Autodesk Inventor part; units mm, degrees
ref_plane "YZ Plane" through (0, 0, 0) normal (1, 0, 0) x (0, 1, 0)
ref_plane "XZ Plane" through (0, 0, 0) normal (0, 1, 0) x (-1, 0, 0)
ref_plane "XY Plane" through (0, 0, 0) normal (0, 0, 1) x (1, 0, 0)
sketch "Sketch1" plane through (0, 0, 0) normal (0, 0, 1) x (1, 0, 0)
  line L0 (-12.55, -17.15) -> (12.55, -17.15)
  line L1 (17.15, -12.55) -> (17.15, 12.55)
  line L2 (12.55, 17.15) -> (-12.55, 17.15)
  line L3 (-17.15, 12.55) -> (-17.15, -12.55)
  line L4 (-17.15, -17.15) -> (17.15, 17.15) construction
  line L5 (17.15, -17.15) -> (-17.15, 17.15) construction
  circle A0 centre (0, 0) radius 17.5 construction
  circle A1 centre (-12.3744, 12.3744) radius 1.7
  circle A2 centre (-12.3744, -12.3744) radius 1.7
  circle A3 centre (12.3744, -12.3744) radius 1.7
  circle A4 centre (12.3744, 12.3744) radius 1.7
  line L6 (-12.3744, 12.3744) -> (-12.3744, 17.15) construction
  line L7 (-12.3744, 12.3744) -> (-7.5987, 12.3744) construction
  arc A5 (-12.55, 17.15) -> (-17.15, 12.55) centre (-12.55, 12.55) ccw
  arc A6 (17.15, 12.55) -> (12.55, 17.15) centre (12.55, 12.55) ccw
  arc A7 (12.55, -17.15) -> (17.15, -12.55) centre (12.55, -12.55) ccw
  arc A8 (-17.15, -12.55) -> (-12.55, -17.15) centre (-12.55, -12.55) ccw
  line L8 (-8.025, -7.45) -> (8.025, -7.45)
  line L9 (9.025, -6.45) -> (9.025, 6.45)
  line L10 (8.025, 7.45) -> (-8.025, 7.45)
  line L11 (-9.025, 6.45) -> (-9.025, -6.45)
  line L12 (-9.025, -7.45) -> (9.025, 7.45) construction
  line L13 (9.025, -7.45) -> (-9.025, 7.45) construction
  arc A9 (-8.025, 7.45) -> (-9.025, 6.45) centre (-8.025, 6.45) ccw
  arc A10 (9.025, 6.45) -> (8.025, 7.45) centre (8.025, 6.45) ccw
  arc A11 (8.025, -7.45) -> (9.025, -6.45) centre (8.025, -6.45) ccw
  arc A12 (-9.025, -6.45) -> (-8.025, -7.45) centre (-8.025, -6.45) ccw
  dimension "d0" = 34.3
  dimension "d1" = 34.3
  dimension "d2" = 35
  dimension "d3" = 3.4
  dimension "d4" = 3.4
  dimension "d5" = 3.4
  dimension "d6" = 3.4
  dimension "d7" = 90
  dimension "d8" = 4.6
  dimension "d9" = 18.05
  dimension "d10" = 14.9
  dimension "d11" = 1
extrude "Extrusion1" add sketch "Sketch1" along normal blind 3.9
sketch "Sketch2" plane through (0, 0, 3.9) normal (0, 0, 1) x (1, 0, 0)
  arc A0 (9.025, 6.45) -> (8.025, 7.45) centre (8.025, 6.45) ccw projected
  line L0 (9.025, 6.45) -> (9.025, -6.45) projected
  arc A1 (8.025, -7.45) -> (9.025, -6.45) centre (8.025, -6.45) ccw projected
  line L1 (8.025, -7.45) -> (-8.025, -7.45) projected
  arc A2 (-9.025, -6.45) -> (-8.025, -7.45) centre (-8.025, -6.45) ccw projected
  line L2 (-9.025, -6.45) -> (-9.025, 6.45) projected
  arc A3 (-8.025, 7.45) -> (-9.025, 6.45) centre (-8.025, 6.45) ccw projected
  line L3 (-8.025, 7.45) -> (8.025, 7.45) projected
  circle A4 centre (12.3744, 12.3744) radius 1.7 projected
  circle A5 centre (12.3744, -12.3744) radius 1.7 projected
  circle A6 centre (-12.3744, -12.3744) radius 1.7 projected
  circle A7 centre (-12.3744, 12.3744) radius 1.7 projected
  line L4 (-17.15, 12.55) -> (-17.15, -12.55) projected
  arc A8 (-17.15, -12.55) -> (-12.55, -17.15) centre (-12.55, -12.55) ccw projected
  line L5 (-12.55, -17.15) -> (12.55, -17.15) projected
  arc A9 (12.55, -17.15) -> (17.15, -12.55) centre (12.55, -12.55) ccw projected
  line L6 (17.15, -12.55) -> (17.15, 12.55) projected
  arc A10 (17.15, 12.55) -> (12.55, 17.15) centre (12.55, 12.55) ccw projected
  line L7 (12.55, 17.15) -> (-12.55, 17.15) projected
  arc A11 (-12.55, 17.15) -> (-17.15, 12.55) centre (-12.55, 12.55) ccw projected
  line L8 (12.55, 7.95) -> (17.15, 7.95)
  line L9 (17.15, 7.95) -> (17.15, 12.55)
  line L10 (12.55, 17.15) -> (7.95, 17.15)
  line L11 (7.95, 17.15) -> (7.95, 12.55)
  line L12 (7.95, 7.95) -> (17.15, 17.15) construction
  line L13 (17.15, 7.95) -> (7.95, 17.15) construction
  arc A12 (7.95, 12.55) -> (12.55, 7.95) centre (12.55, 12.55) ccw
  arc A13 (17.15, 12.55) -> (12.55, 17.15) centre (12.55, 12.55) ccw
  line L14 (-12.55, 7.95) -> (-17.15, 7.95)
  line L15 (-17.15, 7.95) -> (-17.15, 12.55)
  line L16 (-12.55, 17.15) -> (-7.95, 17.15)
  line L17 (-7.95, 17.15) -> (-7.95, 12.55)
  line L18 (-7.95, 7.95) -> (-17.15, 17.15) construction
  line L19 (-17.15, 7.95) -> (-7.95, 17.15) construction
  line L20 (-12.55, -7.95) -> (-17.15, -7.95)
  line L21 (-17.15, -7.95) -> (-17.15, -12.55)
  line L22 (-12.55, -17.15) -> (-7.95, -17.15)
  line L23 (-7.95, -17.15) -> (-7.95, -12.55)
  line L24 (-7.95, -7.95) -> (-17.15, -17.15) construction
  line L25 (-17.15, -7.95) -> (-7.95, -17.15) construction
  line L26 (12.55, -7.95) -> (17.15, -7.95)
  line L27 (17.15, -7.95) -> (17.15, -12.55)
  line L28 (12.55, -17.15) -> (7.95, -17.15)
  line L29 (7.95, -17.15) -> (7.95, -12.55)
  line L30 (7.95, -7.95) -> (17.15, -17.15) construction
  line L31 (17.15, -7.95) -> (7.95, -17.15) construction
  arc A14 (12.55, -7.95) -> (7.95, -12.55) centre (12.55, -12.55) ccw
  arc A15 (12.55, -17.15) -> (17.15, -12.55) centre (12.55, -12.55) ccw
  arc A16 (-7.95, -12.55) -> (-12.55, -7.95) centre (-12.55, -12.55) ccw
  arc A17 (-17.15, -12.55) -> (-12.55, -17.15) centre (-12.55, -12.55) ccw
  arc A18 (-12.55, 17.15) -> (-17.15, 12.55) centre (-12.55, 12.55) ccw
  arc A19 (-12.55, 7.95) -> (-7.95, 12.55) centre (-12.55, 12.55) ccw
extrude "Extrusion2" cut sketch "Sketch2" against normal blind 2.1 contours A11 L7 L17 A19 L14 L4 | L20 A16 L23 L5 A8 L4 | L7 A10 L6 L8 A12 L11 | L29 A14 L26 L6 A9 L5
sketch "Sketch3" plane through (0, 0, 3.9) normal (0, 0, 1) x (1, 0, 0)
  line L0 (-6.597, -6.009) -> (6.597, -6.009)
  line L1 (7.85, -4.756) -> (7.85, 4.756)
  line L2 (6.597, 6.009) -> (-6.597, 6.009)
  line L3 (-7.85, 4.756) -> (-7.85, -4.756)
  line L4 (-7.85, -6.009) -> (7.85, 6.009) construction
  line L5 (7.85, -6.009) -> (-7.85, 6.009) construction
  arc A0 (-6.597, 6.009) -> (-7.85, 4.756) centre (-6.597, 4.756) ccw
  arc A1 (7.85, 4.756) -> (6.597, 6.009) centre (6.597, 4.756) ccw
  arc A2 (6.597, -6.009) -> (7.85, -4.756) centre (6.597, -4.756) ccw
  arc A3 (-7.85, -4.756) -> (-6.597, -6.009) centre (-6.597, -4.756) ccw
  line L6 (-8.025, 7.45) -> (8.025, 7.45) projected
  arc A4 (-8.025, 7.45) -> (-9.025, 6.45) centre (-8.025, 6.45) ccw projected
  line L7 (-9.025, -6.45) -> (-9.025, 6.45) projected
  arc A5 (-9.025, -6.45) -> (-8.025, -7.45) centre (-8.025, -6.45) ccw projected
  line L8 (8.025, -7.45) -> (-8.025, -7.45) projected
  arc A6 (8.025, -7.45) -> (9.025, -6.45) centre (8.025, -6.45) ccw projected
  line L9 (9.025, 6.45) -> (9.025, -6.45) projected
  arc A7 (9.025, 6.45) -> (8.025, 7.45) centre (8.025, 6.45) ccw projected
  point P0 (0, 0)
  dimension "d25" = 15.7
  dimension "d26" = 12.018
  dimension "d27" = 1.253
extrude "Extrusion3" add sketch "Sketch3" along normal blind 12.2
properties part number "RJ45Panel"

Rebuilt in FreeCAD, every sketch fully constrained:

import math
import FreeCAD as App
import Part
import Sketcher

V = App.Vector
Q = App.Units.Quantity

doc = App.newDocument("Part")
body = doc.addObject("PartDesign::Body", "Body")
body.AllowCompound = True

sketch1 = body.newObject("Sketcher::SketchObject", "Sketch")
sketch1.AttachmentSupport = (doc.getObject("XY_Plane"), [""])
sketch1.MapMode = "FlatFace"
sketch1.addGeometry(Part.ArcOfCircle(Part.Circle(V(-12.6, -12.6, 0), V(0, 0, 1), 4.6), math.radians(180), math.radians(270)), False)
sketch1.addGeometry(Part.LineSegment(V(-12.6, -17.1, 0), V(12.6, -17.1, 0)), False)
sketch1.addGeometry(Part.ArcOfCircle(Part.Circle(V(12.6, -12.6, 0), V(0, 0, 1), 4.6), math.radians(-90), math.radians(0)), False)
sketch1.addGeometry(Part.LineSegment(V(17.1, -12.6, 0), V(17.1, 12.6, 0)), False)
sketch1.addGeometry(Part.ArcOfCircle(Part.Circle(V(12.6, 12.6, 0), V(0, 0, 1), 4.6), math.radians(0), math.radians(90)), False)
sketch1.addGeometry(Part.LineSegment(V(12.6, 17.1, 0), V(-12.6, 17.1, 0)), False)
sketch1.addGeometry(Part.ArcOfCircle(Part.Circle(V(-12.6, 12.6, 0), V(0, 0, 1), 4.6), math.radians(90), math.radians(180)), False)
sketch1.addGeometry(Part.LineSegment(V(-17.1, 12.6, 0), V(-17.1, -12.6, 0)), False)
sketch1.addGeometry(Part.Circle(V(-12.4, -12.4, 0), V(0, 0, 1), 1.7), False)
sketch1.addGeometry(Part.Circle(V(12.4, -12.4, 0), V(0, 0, 1), 1.7), False)
sketch1.addGeometry(Part.Circle(V(-12.4, 12.4, 0), V(0, 0, 1), 1.7), False)
sketch1.addGeometry(Part.LineSegment(V(8, -7.5, 0), V(-8, -7.5, 0)), False)
sketch1.addGeometry(Part.ArcOfCircle(Part.Circle(V(-8, -6.5, 0), V(0, 0, 1), 1), math.radians(180), math.radians(270)), False)
sketch1.addGeometry(Part.LineSegment(V(-9, -6.5, 0), V(-9, 6.5, 0)), False)
sketch1.addGeometry(Part.ArcOfCircle(Part.Circle(V(-8, 6.5, 0), V(0, 0, 1), 1), math.radians(90), math.radians(180)), False)
sketch1.addGeometry(Part.LineSegment(V(-8, 7.5, 0), V(8, 7.5, 0)), False)
sketch1.addGeometry(Part.ArcOfCircle(Part.Circle(V(8, 6.5, 0), V(0, 0, 1), 1), math.radians(0), math.radians(90)), False)
sketch1.addGeometry(Part.LineSegment(V(9, 6.5, 0), V(9, -6.5, 0)), False)
sketch1.addGeometry(Part.ArcOfCircle(Part.Circle(V(8, -6.5, 0), V(0, 0, 1), 1), math.radians(-90), math.radians(0)), False)
sketch1.addGeometry(Part.Circle(V(12.4, 12.4, 0), V(0, 0, 1), 1.7), False)
sketch1.addConstraint(Sketcher.Constraint("Tangent", 0, 2, 1, 1))
sketch1.addConstraint(Sketcher.Constraint("Tangent", 1, 2, 2, 1))
sketch1.addConstraint(Sketcher.Constraint("Tangent", 2, 2, 3, 1))
sketch1.addConstraint(Sketcher.Constraint("Tangent", 3, 2, 4, 1))
sketch1.addConstraint(Sketcher.Constraint("Tangent", 4, 2, 5, 1))
sketch1.addConstraint(Sketcher.Constraint("Tangent", 5, 2, 6, 1))
sketch1.addConstraint(Sketcher.Constraint("Tangent", 6, 2, 7, 1))
sketch1.addConstraint(Sketcher.Constraint("Tangent", 7, 2, 0, 1))
sketch1.addConstraint(Sketcher.Constraint("Tangent", 11, 2, 12, 2))
sketch1.addConstraint(Sketcher.Constraint("Tangent", 12, 1, 13, 1))
sketch1.addConstraint(Sketcher.Constraint("Tangent", 13, 2, 14, 2))
sketch1.addConstraint(Sketcher.Constraint("Tangent", 14, 1, 15, 1))
sketch1.addConstraint(Sketcher.Constraint("Tangent", 15, 2, 16, 2))
sketch1.addConstraint(Sketcher.Constraint("Tangent", 16, 1, 17, 1))
sketch1.addConstraint(Sketcher.Constraint("Tangent", 17, 2, 18, 2))
sketch1.addConstraint(Sketcher.Constraint("Tangent", 18, 1, 11, 1))
sketch1.addConstraint(Sketcher.Constraint("Horizontal", 1))
sketch1.addConstraint(Sketcher.Constraint("Vertical", 3))
sketch1.addConstraint(Sketcher.Constraint("Horizontal", 5))
sketch1.addConstraint(Sketcher.Constraint("Vertical", 7))
sketch1.addConstraint(Sketcher.Constraint("Horizontal", 11))
sketch1.addConstraint(Sketcher.Constraint("Vertical", 13))
sketch1.addConstraint(Sketcher.Constraint("Horizontal", 15))
sketch1.addConstraint(Sketcher.Constraint("Vertical", 17))
sketch1.addConstraint(Sketcher.Constraint("Equal", 0, 2))
sketch1.addConstraint(Sketcher.Constraint("Equal", 2, 4))
sketch1.addConstraint(Sketcher.Constraint("Equal", 4, 6))
sketch1.addConstraint(Sketcher.Constraint("Equal", 8, 9))
sketch1.addConstraint(Sketcher.Constraint("Equal", 9, 10))
sketch1.addConstraint(Sketcher.Constraint("Equal", 12, 14))
sketch1.addConstraint(Sketcher.Constraint("Equal", 14, 16))
sketch1.addConstraint(Sketcher.Constraint("Equal", 16, 18))
sketch1.addConstraint(Sketcher.Constraint("Equal", 10, 19))
sketch1.addConstraint(Sketcher.Constraint("Symmetric", 0, 3, 4, 3, -1, 1))
sketch1.addConstraint(Sketcher.Constraint("Symmetric", 9, 3, 10, 3, -1, 1))
sketch1.addConstraint(Sketcher.Constraint("Symmetric", 12, 3, 16, 3, -1, 1))
sketch1.addConstraint(Sketcher.Constraint("Symmetric", 8, 3, 19, 3, -1, 1))
sketch1.addConstraint(Sketcher.Constraint("Symmetric", 8, 3, 9, 3, -2))
sketch1.addConstraint(Sketcher.Constraint("Equal", 5, 3))
sketch1.addConstraint(Sketcher.Constraint("Radius", 12, Q("1 mm")))
sketch1.addConstraint(Sketcher.Constraint("Diameter", 8, Q("3.4 mm")))
sketch1.addConstraint(Sketcher.Constraint("Radius", 0, Q("4.6 mm")))
sketch1.addConstraint(Sketcher.Constraint("DistanceX", 1, 1, 1, 2, Q("25.1 mm")))
sketch1.addConstraint(Sketcher.Constraint("DistanceY", 13, 1, 13, 2, Q("12.9 mm")))
sketch1.addConstraint(Sketcher.Constraint("DistanceX", 11, 2, 11, 1, Q("16.05 mm")))
sketch1.addConstraint(Sketcher.Constraint("DistanceX", 8, 3, -1, 1, Q("12.3744 mm")))
sketch1.addConstraint(Sketcher.Constraint("DistanceY", 8, 3, -1, 1, Q("12.3744 mm")))
pad1 = body.newObject("PartDesign::Pad", "Pad")
pad1.Profile = sketch1
pad1.Length = 3.9

sketch2 = body.newObject("Sketcher::SketchObject", "Sketch001")
sketch2.AttachmentSupport = (doc.getObject("XY_Plane"), [""])
sketch2.MapMode = "FlatFace"
sketch2.AttachmentOffset = App.Placement(V(0, 0, 3.9), App.Rotation())
sketch2.addGeometry(Part.ArcOfCircle(Part.Circle(V(-12.6, 12.6, 0), V(0, 0, 1), 4.6), math.radians(90), math.radians(180)), False)
sketch2.addGeometry(Part.LineSegment(V(-17.1, 12.6, 0), V(-17.1, 8, 0)), False)
sketch2.addGeometry(Part.LineSegment(V(-17.1, 8, 0), V(-12.6, 8, 0)), False)
sketch2.addGeometry(Part.ArcOfCircle(Part.Circle(V(-12.6, 12.6, 0), V(0, 0, 1), 4.6), math.radians(-90), math.radians(0)), False)
sketch2.addGeometry(Part.LineSegment(V(-8, 12.6, 0), V(-8, 17.1, 0)), False)
sketch2.addGeometry(Part.LineSegment(V(-8, 17.1, 0), V(-12.6, 17.1, 0)), False)
sketch2.addGeometry(Part.Circle(V(-12.4, 12.4, 0), V(0, 0, 1), 1.7), False)
sketch2.addGeometry(Part.LineSegment(V(-12.6, -8, 0), V(-17.1, -8, 0)), False)
sketch2.addGeometry(Part.LineSegment(V(-17.1, -8, 0), V(-17.1, -12.6, 0)), False)
sketch2.addGeometry(Part.ArcOfCircle(Part.Circle(V(-12.6, -12.6, 0), V(0, 0, 1), 4.6), math.radians(180), math.radians(270)), False)
sketch2.addGeometry(Part.LineSegment(V(-12.6, -17.1, 0), V(-8, -17.1, 0)), False)
sketch2.addGeometry(Part.LineSegment(V(-8, -17.1, 0), V(-8, -12.6, 0)), False)
sketch2.addGeometry(Part.ArcOfCircle(Part.Circle(V(-12.6, -12.6, 0), V(0, 0, 1), 4.6), math.radians(0), math.radians(90)), False)
sketch2.addGeometry(Part.Circle(V(-12.4, -12.4, 0), V(0, 0, 1), 1.7), False)
sketch2.addGeometry(Part.LineSegment(V(12.6, 17.1, 0), V(8, 17.1, 0)), False)
sketch2.addGeometry(Part.LineSegment(V(8, 17.1, 0), V(8, 12.6, 0)), False)
sketch2.addGeometry(Part.ArcOfCircle(Part.Circle(V(12.6, 12.6, 0), V(0, 0, 1), 4.6), math.radians(180), math.radians(270)), False)
sketch2.addGeometry(Part.LineSegment(V(12.6, 8, 0), V(17.1, 8, 0)), False)
sketch2.addGeometry(Part.LineSegment(V(17.1, 8, 0), V(17.1, 12.6, 0)), False)
sketch2.addGeometry(Part.ArcOfCircle(Part.Circle(V(12.6, 12.6, 0), V(0, 0, 1), 4.6), math.radians(0), math.radians(90)), False)
sketch2.addGeometry(Part.Circle(V(12.4, 12.4, 0), V(0, 0, 1), 1.7), False)
sketch2.addGeometry(Part.LineSegment(V(8, -12.6, 0), V(8, -17.1, 0)), False)
sketch2.addGeometry(Part.LineSegment(V(8, -17.1, 0), V(12.6, -17.1, 0)), False)
sketch2.addGeometry(Part.ArcOfCircle(Part.Circle(V(12.6, -12.6, 0), V(0, 0, 1), 4.6), math.radians(-90), math.radians(0)), False)
sketch2.addGeometry(Part.LineSegment(V(17.1, -12.6, 0), V(17.1, -8, 0)), False)
sketch2.addGeometry(Part.LineSegment(V(17.1, -8, 0), V(12.6, -8, 0)), False)
sketch2.addGeometry(Part.ArcOfCircle(Part.Circle(V(12.6, -12.6, 0), V(0, 0, 1), 4.6), math.radians(90), math.radians(180)), False)
sketch2.addGeometry(Part.Circle(V(12.4, -12.4, 0), V(0, 0, 1), 1.7), False)
sketch2.addConstraint(Sketcher.Constraint("Tangent", 0, 2, 1, 1))
sketch2.addConstraint(Sketcher.Constraint("Coincident", 1, 2, 2, 1))
sketch2.addConstraint(Sketcher.Constraint("Tangent", 2, 2, 3, 1))
sketch2.addConstraint(Sketcher.Constraint("Tangent", 3, 2, 4, 1))
sketch2.addConstraint(Sketcher.Constraint("Coincident", 4, 2, 5, 1))
sketch2.addConstraint(Sketcher.Constraint("Tangent", 5, 2, 0, 1))
sketch2.addConstraint(Sketcher.Constraint("Coincident", 7, 2, 8, 1))
sketch2.addConstraint(Sketcher.Constraint("Tangent", 8, 2, 9, 1))
sketch2.addConstraint(Sketcher.Constraint("Tangent", 9, 2, 10, 1))
sketch2.addConstraint(Sketcher.Constraint("Coincident", 10, 2, 11, 1))
sketch2.addConstraint(Sketcher.Constraint("Tangent", 11, 2, 12, 1))
sketch2.addConstraint(Sketcher.Constraint("Tangent", 12, 2, 7, 1))
sketch2.addConstraint(Sketcher.Constraint("Coincident", 14, 2, 15, 1))
sketch2.addConstraint(Sketcher.Constraint("Tangent", 15, 2, 16, 1))
sketch2.addConstraint(Sketcher.Constraint("Tangent", 16, 2, 17, 1))
sketch2.addConstraint(Sketcher.Constraint("Coincident", 17, 2, 18, 1))
sketch2.addConstraint(Sketcher.Constraint("Tangent", 18, 2, 19, 1))
sketch2.addConstraint(Sketcher.Constraint("Tangent", 19, 2, 14, 1))
sketch2.addConstraint(Sketcher.Constraint("Coincident", 21, 2, 22, 1))
sketch2.addConstraint(Sketcher.Constraint("Tangent", 22, 2, 23, 1))
sketch2.addConstraint(Sketcher.Constraint("Tangent", 23, 2, 24, 1))
sketch2.addConstraint(Sketcher.Constraint("Coincident", 24, 2, 25, 1))
sketch2.addConstraint(Sketcher.Constraint("Tangent", 25, 2, 26, 1))
sketch2.addConstraint(Sketcher.Constraint("Tangent", 26, 2, 21, 1))
sketch2.addConstraint(Sketcher.Constraint("Vertical", 1))
sketch2.addConstraint(Sketcher.Constraint("Horizontal", 2))
sketch2.addConstraint(Sketcher.Constraint("Vertical", 4))
sketch2.addConstraint(Sketcher.Constraint("Horizontal", 5))
sketch2.addConstraint(Sketcher.Constraint("Horizontal", 7))
sketch2.addConstraint(Sketcher.Constraint("Vertical", 8))
sketch2.addConstraint(Sketcher.Constraint("Horizontal", 10))
sketch2.addConstraint(Sketcher.Constraint("Vertical", 11))
sketch2.addConstraint(Sketcher.Constraint("Horizontal", 14))
sketch2.addConstraint(Sketcher.Constraint("Vertical", 15))
sketch2.addConstraint(Sketcher.Constraint("Horizontal", 17))
sketch2.addConstraint(Sketcher.Constraint("Vertical", 18))
sketch2.addConstraint(Sketcher.Constraint("Vertical", 21))
sketch2.addConstraint(Sketcher.Constraint("Horizontal", 22))
sketch2.addConstraint(Sketcher.Constraint("Vertical", 24))
sketch2.addConstraint(Sketcher.Constraint("Horizontal", 25))
sketch2.addConstraint(Sketcher.Constraint("Coincident", 3, 3, 0, 3))
sketch2.addConstraint(Sketcher.Constraint("Coincident", 12, 3, 9, 3))
sketch2.addConstraint(Sketcher.Constraint("Coincident", 19, 3, 16, 3))
sketch2.addConstraint(Sketcher.Constraint("Coincident", 26, 3, 23, 3))
sketch2.addConstraint(Sketcher.Constraint("Equal", 0, 3))
sketch2.addConstraint(Sketcher.Constraint("Equal", 3, 9))
sketch2.addConstraint(Sketcher.Constraint("Equal", 9, 12))
sketch2.addConstraint(Sketcher.Constraint("Equal", 6, 13))
sketch2.addConstraint(Sketcher.Constraint("Equal", 12, 16))
sketch2.addConstraint(Sketcher.Constraint("Equal", 16, 19))
sketch2.addConstraint(Sketcher.Constraint("Equal", 13, 20))
sketch2.addConstraint(Sketcher.Constraint("Equal", 19, 23))
sketch2.addConstraint(Sketcher.Constraint("Equal", 23, 26))
sketch2.addConstraint(Sketcher.Constraint("Equal", 20, 27))
sketch2.addConstraint(Sketcher.Constraint("Symmetric", 9, 3, 16, 3, -1, 1))
sketch2.addConstraint(Sketcher.Constraint("Symmetric", 13, 3, 20, 3, -1, 1))
sketch2.addConstraint(Sketcher.Constraint("Symmetric", 0, 3, 23, 3, -1, 1))
sketch2.addConstraint(Sketcher.Constraint("Symmetric", 6, 3, 27, 3, -1, 1))
sketch2.addConstraint(Sketcher.Constraint("Symmetric", 0, 3, 16, 3, -2))
sketch2.addConstraint(Sketcher.Constraint("Symmetric", 6, 3, 20, 3, -2))
sketch2.addConstraint(Sketcher.Constraint("Diameter", 6, Q("3.4 mm")))
sketch2.addConstraint(Sketcher.Constraint("Radius", 0, Q("4.6 mm")))
sketch2.addConstraint(Sketcher.Constraint("DistanceY", 9, 3, 0, 3, Q("25.1 mm")))
sketch2.addConstraint(Sketcher.Constraint("DistanceX", 0, 3, 16, 3, Q("25.1 mm")))
sketch2.addConstraint(Sketcher.Constraint("DistanceX", 6, 3, -1, 1, Q("12.3744 mm")))
sketch2.addConstraint(Sketcher.Constraint("DistanceY", -1, 1, 6, 3, Q("12.3744 mm")))
pocket1 = body.newObject("PartDesign::Pocket", "Pocket")
pocket1.Profile = sketch2
pocket1.Length = 2.1

sketch3 = body.newObject("Sketcher::SketchObject", "Sketch002")
sketch3.AttachmentSupport = (doc.getObject("XY_Plane"), [""])
sketch3.MapMode = "FlatFace"
sketch3.AttachmentOffset = App.Placement(V(0, 0, 3.9), App.Rotation())
sketch3.addGeometry(Part.LineSegment(V(8, 7.5, 0), V(-8, 7.5, 0)), False)
sketch3.addGeometry(Part.ArcOfCircle(Part.Circle(V(-8, 6.5, 0), V(0, 0, 1), 1), math.radians(90), math.radians(180)), False)
sketch3.addGeometry(Part.LineSegment(V(-9, 6.5, 0), V(-9, -6.5, 0)), False)
sketch3.addGeometry(Part.ArcOfCircle(Part.Circle(V(-8, -6.5, 0), V(0, 0, 1), 1), math.radians(180), math.radians(270)), False)
sketch3.addGeometry(Part.LineSegment(V(-8, -7.5, 0), V(8, -7.5, 0)), False)
sketch3.addGeometry(Part.ArcOfCircle(Part.Circle(V(8, -6.5, 0), V(0, 0, 1), 1), math.radians(-90), math.radians(0)), False)
sketch3.addGeometry(Part.LineSegment(V(9, -6.5, 0), V(9, 6.5, 0)), False)
sketch3.addGeometry(Part.ArcOfCircle(Part.Circle(V(8, 6.5, 0), V(0, 0, 1), 1), math.radians(0), math.radians(90)), False)
sketch3.addGeometry(Part.LineSegment(V(6.6, -6, 0), V(-6.6, -6, 0)), False)
sketch3.addGeometry(Part.ArcOfCircle(Part.Circle(V(-6.6, -4.8, 0), V(0, 0, 1), 1.3), math.radians(180), math.radians(270)), False)
sketch3.addGeometry(Part.LineSegment(V(-7.8, -4.8, 0), V(-7.8, 4.8, 0)), False)
sketch3.addGeometry(Part.ArcOfCircle(Part.Circle(V(-6.6, 4.8, 0), V(0, 0, 1), 1.3), math.radians(90), math.radians(180)), False)
sketch3.addGeometry(Part.LineSegment(V(-6.6, 6, 0), V(6.6, 6, 0)), False)
sketch3.addGeometry(Part.ArcOfCircle(Part.Circle(V(6.6, 4.8, 0), V(0, 0, 1), 1.3), math.radians(0), math.radians(90)), False)
sketch3.addGeometry(Part.LineSegment(V(7.8, 4.8, 0), V(7.8, -4.8, 0)), False)
sketch3.addGeometry(Part.ArcOfCircle(Part.Circle(V(6.6, -4.8, 0), V(0, 0, 1), 1.3), math.radians(-90), math.radians(0)), False)
sketch3.addConstraint(Sketcher.Constraint("Tangent", 0, 2, 1, 1))
sketch3.addConstraint(Sketcher.Constraint("Tangent", 1, 2, 2, 1))
sketch3.addConstraint(Sketcher.Constraint("Tangent", 2, 2, 3, 1))
sketch3.addConstraint(Sketcher.Constraint("Tangent", 3, 2, 4, 1))
sketch3.addConstraint(Sketcher.Constraint("Tangent", 4, 2, 5, 1))
sketch3.addConstraint(Sketcher.Constraint("Tangent", 5, 2, 6, 1))
sketch3.addConstraint(Sketcher.Constraint("Tangent", 6, 2, 7, 1))
sketch3.addConstraint(Sketcher.Constraint("Tangent", 7, 2, 0, 1))
sketch3.addConstraint(Sketcher.Constraint("Tangent", 8, 2, 9, 2))
sketch3.addConstraint(Sketcher.Constraint("Tangent", 9, 1, 10, 1))
sketch3.addConstraint(Sketcher.Constraint("Tangent", 10, 2, 11, 2))
sketch3.addConstraint(Sketcher.Constraint("Tangent", 11, 1, 12, 1))
sketch3.addConstraint(Sketcher.Constraint("Tangent", 12, 2, 13, 2))
sketch3.addConstraint(Sketcher.Constraint("Tangent", 13, 1, 14, 1))
sketch3.addConstraint(Sketcher.Constraint("Tangent", 14, 2, 15, 2))
sketch3.addConstraint(Sketcher.Constraint("Tangent", 15, 1, 8, 1))
sketch3.addConstraint(Sketcher.Constraint("Horizontal", 0))
sketch3.addConstraint(Sketcher.Constraint("Vertical", 2))
sketch3.addConstraint(Sketcher.Constraint("Horizontal", 4))
sketch3.addConstraint(Sketcher.Constraint("Vertical", 6))
sketch3.addConstraint(Sketcher.Constraint("Horizontal", 8))
sketch3.addConstraint(Sketcher.Constraint("Vertical", 10))
sketch3.addConstraint(Sketcher.Constraint("Horizontal", 12))
sketch3.addConstraint(Sketcher.Constraint("Vertical", 14))
sketch3.addConstraint(Sketcher.Constraint("Equal", 1, 3))
sketch3.addConstraint(Sketcher.Constraint("Equal", 3, 5))
sketch3.addConstraint(Sketcher.Constraint("Equal", 5, 7))
sketch3.addConstraint(Sketcher.Constraint("Equal", 9, 11))
sketch3.addConstraint(Sketcher.Constraint("Equal", 11, 13))
sketch3.addConstraint(Sketcher.Constraint("Equal", 13, 15))
sketch3.addConstraint(Sketcher.Constraint("Symmetric", 1, 3, 5, 3, -1, 1))
sketch3.addConstraint(Sketcher.Constraint("Symmetric", 9, 3, 13, 3, -1, 1))
sketch3.addConstraint(Sketcher.Constraint("Radius", 1, Q("1 mm")))
sketch3.addConstraint(Sketcher.Constraint("Radius", 9, Q("1.253 mm")))
sketch3.addConstraint(Sketcher.Constraint("DistanceY", 2, 2, 2, 1, Q("12.9 mm")))
sketch3.addConstraint(Sketcher.Constraint("DistanceX", 0, 2, 0, 1, Q("16.05 mm")))
sketch3.addConstraint(Sketcher.Constraint("DistanceX", 8, 2, 8, 1, Q("13.194 mm")))
sketch3.addConstraint(Sketcher.Constraint("DistanceY", 10, 1, 10, 2, Q("9.512 mm")))
pad2 = body.newObject("PartDesign::Pad", "Pad001")
pad2.Profile = sketch3
pad2.Length = 12.2

doc.recompute()
